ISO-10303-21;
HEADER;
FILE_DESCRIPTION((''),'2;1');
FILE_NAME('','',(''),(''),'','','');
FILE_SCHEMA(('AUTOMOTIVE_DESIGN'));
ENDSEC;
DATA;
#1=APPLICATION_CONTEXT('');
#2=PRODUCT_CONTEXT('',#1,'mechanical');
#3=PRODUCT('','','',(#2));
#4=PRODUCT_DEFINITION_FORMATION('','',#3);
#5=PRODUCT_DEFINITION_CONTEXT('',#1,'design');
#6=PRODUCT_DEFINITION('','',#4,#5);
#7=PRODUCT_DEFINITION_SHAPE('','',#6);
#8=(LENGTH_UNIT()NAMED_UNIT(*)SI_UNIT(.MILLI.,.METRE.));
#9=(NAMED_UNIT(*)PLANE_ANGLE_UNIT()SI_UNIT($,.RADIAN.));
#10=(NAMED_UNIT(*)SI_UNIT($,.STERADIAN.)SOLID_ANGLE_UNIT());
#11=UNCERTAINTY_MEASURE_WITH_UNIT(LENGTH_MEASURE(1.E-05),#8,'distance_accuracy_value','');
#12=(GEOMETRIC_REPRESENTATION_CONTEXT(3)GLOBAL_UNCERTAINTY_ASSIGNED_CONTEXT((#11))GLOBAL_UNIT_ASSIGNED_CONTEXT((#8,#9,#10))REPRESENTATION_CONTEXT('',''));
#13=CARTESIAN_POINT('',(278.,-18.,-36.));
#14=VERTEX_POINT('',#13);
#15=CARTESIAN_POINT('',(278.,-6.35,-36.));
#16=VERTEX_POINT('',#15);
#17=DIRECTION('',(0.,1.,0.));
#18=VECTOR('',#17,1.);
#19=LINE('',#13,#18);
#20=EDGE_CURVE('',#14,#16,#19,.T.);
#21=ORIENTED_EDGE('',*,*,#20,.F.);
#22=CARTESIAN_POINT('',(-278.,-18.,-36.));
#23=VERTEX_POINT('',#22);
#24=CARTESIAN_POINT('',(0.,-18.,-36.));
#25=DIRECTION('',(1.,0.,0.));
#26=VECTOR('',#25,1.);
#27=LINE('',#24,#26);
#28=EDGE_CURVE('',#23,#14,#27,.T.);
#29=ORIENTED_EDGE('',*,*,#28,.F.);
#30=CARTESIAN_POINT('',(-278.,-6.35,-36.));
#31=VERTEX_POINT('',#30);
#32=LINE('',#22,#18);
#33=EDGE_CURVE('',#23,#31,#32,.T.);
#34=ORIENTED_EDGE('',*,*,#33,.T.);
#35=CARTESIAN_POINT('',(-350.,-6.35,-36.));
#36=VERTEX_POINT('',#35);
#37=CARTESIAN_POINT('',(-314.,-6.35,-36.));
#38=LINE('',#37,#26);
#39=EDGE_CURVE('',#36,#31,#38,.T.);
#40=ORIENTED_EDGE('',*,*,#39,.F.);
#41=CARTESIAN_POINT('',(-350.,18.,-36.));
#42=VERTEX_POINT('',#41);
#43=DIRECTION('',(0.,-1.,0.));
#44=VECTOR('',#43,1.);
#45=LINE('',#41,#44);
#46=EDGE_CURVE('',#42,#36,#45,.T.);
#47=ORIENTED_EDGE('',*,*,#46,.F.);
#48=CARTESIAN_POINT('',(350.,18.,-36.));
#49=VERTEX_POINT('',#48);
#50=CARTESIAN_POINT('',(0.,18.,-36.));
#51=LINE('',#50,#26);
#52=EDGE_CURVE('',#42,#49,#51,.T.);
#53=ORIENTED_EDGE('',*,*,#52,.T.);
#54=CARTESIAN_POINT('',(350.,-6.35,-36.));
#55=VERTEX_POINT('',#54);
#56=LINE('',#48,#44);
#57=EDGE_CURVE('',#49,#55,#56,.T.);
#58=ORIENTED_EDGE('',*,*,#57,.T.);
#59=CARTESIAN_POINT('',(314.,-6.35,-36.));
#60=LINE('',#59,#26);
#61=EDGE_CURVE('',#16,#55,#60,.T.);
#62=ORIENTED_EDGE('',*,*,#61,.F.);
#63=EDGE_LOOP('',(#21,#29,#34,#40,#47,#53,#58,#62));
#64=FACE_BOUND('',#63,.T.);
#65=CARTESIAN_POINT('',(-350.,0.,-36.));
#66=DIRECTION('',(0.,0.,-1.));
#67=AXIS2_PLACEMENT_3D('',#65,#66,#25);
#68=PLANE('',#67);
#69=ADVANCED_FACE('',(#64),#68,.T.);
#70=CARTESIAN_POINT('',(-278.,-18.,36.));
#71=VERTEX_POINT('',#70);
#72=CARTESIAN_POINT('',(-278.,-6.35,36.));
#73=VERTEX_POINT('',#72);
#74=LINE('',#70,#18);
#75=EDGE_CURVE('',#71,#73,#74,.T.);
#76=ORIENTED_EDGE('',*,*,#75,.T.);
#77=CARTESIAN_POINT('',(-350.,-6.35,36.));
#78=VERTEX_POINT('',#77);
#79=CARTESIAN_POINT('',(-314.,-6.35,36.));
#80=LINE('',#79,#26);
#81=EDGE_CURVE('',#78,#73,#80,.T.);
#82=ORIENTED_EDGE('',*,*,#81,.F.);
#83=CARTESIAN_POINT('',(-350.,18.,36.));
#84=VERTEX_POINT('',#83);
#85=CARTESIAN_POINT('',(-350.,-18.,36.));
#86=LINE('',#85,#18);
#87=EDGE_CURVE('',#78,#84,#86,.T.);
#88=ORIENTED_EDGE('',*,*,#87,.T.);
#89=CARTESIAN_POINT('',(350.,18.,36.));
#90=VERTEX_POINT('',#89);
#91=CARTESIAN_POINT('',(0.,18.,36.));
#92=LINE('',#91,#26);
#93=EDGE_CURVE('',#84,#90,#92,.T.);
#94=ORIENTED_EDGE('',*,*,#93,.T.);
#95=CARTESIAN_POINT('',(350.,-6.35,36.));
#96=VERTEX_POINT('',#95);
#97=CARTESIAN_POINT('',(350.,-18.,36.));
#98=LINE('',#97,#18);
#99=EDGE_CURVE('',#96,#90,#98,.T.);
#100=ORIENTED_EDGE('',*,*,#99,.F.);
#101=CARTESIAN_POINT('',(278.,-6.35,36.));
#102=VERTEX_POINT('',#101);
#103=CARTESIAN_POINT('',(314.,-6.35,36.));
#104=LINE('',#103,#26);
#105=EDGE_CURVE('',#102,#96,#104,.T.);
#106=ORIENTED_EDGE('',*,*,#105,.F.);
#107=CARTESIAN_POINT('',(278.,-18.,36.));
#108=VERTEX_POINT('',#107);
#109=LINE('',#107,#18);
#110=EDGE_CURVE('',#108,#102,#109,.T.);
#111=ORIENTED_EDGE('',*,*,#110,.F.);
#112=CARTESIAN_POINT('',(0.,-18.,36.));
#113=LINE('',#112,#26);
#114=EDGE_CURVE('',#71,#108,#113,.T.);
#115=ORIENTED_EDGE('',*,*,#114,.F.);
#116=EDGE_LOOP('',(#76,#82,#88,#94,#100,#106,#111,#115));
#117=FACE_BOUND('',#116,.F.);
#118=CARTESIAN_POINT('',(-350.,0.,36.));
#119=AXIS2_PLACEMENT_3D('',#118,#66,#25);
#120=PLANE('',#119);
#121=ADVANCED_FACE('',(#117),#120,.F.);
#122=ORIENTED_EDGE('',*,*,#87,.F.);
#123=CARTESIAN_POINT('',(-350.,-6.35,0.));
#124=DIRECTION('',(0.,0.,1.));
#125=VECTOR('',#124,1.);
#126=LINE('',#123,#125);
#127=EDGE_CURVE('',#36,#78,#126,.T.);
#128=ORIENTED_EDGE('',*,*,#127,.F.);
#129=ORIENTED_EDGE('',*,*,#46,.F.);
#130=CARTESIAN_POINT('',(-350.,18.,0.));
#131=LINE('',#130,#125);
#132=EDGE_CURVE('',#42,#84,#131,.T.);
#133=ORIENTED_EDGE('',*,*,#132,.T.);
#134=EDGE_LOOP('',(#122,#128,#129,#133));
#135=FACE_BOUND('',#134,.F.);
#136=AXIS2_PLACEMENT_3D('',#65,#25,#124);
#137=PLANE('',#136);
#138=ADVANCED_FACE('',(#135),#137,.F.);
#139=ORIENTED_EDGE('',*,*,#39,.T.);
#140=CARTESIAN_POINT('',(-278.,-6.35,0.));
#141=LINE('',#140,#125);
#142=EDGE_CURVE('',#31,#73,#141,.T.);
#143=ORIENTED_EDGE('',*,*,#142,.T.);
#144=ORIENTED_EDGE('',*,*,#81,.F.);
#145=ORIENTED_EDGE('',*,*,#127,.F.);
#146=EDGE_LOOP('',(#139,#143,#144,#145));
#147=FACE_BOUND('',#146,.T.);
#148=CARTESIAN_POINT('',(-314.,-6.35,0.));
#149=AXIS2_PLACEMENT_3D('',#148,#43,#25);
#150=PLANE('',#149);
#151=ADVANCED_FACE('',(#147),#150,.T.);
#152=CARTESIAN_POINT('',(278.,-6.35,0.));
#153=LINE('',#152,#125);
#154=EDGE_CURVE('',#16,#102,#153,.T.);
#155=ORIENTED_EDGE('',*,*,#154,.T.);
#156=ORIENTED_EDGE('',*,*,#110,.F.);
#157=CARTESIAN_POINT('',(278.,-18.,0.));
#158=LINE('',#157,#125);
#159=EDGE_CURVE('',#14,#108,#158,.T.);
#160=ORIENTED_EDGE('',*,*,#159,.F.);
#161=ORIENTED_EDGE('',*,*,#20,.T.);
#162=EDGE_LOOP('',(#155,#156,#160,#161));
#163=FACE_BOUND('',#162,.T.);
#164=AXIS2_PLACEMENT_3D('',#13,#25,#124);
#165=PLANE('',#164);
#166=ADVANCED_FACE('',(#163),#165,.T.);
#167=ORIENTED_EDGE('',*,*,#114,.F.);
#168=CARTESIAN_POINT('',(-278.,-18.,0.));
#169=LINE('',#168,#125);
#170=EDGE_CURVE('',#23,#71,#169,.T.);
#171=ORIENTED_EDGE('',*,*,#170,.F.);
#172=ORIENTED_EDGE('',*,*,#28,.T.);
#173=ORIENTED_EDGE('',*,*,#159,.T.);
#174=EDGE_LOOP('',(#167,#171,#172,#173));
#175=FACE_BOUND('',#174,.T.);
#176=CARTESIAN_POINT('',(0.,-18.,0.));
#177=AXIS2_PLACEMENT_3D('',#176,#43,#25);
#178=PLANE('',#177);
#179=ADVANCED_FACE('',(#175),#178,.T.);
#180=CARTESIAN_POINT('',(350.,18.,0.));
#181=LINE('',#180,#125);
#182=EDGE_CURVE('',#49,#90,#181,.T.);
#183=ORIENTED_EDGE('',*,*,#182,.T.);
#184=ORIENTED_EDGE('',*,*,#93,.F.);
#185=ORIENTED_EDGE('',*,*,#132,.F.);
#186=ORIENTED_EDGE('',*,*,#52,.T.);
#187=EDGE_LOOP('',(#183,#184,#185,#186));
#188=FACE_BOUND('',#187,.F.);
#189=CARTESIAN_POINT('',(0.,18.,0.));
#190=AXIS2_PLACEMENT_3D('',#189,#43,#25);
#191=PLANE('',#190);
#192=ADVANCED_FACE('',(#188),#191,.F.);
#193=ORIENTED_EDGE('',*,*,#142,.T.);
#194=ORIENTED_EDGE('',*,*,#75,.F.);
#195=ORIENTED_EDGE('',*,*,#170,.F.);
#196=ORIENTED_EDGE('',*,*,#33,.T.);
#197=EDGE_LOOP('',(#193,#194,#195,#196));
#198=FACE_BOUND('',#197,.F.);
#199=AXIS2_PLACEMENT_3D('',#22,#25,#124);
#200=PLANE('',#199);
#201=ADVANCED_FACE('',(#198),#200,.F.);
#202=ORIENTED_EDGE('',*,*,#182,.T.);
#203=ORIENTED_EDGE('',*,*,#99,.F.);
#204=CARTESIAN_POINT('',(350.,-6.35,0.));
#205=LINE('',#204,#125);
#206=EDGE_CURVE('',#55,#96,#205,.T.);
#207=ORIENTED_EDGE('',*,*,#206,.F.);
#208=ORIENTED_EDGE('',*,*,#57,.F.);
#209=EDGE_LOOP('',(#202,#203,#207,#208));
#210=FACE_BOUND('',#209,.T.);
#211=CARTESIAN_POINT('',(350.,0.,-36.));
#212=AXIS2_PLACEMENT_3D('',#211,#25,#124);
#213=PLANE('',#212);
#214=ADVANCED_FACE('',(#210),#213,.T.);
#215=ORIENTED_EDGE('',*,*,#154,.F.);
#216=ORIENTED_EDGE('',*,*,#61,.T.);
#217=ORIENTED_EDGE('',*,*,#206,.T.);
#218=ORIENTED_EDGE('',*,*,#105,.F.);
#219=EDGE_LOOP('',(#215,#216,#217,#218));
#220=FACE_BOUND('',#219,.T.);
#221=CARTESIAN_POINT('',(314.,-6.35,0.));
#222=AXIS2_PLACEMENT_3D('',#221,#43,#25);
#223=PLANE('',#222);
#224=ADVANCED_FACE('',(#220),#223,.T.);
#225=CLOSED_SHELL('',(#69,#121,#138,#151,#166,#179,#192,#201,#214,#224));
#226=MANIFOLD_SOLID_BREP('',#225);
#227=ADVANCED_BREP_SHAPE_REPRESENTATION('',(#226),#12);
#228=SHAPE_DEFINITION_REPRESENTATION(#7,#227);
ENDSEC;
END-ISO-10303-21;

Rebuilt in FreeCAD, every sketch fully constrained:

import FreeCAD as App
import Part
import Sketcher

V = App.Vector

doc = App.newDocument("Part")
body = doc.addObject("PartDesign::Body", "Body")

# Sketch on XZ plane
sketch1 = doc.addObject("Sketcher::SketchObject", "Sketch")
body.addObject(sketch1)
sketch1.AttachmentSupport = (doc.XZ_Plane, [""])
sketch1.MapMode = "FlatFace"
sketch1.addGeometry([
    Part.LineSegment(V(-350, 36, 0), V(-350, -36, 0)),
    Part.LineSegment(V(-350, -36, 0), V(350, -36, 0)),
    Part.LineSegment(V(350, -36, 0), V(350, 36, 0)),
    Part.LineSegment(V(350, 36, 0), V(-350, 36, 0)),
], False)
sketch1.addConstraint([
    Sketcher.Constraint("Coincident", 0, 2, 1, 1),
    Sketcher.Constraint("Coincident", 1, 2, 2, 1),
    Sketcher.Constraint("Coincident", 2, 2, 3, 1),
    Sketcher.Constraint("Coincident", 3, 2, 0, 1),
    Sketcher.Constraint("Vertical", 0),
    Sketcher.Constraint("Horizontal", 1),
    Sketcher.Constraint("Vertical", 2),
    Sketcher.Constraint("Horizontal", 3),
    Sketcher.Constraint("Symmetric", 0, 2, 2, 2, -1, 1),
    Sketcher.Constraint("DistanceX", 1, 1, 1, 2, 700.0),
    Sketcher.Constraint("DistanceY", 0, 2, 0, 1, 72.0),
])
pad1 = doc.addObject("PartDesign::Pad", "Pad")
body.addObject(pad1)
pad1.Profile = sketch1
pad1.Length = 36
pad1.Midplane = True

# Sketch on XZ plane
sketch2 = doc.addObject("Sketcher::SketchObject", "Sketch001")
body.addObject(sketch2)
sketch2.AttachmentSupport = (doc.XZ_Plane, [""])
sketch2.MapMode = "FlatFace"
sketch2.AttachmentOffset = App.Placement(V(0, 0, 18), App.Rotation())
sketch2.addGeometry([
    Part.LineSegment(V(-350, 36, 0), V(-350, -36, 0)),  # 0
    Part.LineSegment(V(-350, -36, 0), V(-278, -36, 0)),  # 1
    Part.LineSegment(V(-278, -36, 0), V(-278, 36, 0)),  # 2
    Part.LineSegment(V(-278, 36, 0), V(-350, 36, 0)),  # 3
    Part.LineSegment(V(278, 36, 0), V(278, -36, 0)),  # 4
    Part.LineSegment(V(278, -36, 0), V(350, -36, 0)),  # 5
    Part.LineSegment(V(350, -36, 0), V(350, 36, 0)),  # 6
    Part.LineSegment(V(350, 36, 0), V(278, 36, 0)),  # 7
], False)
sketch2.addConstraint([
    Sketcher.Constraint("Coincident", 0, 2, 1, 1),
    Sketcher.Constraint("Coincident", 1, 2, 2, 1),
    Sketcher.Constraint("Coincident", 2, 2, 3, 1),
    Sketcher.Constraint("Coincident", 3, 2, 0, 1),
    Sketcher.Constraint("Coincident", 4, 2, 5, 1),
    Sketcher.Constraint("Coincident", 5, 2, 6, 1),
    Sketcher.Constraint("Coincident", 6, 2, 7, 1),
    Sketcher.Constraint("Coincident", 7, 2, 4, 1),
    Sketcher.Constraint("Vertical", 0),
    Sketcher.Constraint("Horizontal", 1),
    Sketcher.Constraint("Vertical", 2),
    Sketcher.Constraint("Horizontal", 3),
    Sketcher.Constraint("Vertical", 4),
    Sketcher.Constraint("Horizontal", 5),
    Sketcher.Constraint("Vertical", 6),
    Sketcher.Constraint("Horizontal", 7),
    Sketcher.Constraint("Symmetric", 2, 2, 4, 2, -1, 1),
    Sketcher.Constraint("Symmetric", 0, 2, 6, 2, -1, 1),
    Sketcher.Constraint("Horizontal", 1, 2, 4, 2),
    Sketcher.Constraint("Equal", 7, 0),
    Sketcher.Constraint("DistanceX", 1, 1, 1, 2, 72.0),
    Sketcher.Constraint("DistanceX", 0, 2, -1, 1, 350.0),
])
pocket1 = doc.addObject("PartDesign::Pocket", "Pocket")
body.addObject(pocket1)
pocket1.Profile = sketch2
pocket1.Length = 11.65

doc.recompute()
